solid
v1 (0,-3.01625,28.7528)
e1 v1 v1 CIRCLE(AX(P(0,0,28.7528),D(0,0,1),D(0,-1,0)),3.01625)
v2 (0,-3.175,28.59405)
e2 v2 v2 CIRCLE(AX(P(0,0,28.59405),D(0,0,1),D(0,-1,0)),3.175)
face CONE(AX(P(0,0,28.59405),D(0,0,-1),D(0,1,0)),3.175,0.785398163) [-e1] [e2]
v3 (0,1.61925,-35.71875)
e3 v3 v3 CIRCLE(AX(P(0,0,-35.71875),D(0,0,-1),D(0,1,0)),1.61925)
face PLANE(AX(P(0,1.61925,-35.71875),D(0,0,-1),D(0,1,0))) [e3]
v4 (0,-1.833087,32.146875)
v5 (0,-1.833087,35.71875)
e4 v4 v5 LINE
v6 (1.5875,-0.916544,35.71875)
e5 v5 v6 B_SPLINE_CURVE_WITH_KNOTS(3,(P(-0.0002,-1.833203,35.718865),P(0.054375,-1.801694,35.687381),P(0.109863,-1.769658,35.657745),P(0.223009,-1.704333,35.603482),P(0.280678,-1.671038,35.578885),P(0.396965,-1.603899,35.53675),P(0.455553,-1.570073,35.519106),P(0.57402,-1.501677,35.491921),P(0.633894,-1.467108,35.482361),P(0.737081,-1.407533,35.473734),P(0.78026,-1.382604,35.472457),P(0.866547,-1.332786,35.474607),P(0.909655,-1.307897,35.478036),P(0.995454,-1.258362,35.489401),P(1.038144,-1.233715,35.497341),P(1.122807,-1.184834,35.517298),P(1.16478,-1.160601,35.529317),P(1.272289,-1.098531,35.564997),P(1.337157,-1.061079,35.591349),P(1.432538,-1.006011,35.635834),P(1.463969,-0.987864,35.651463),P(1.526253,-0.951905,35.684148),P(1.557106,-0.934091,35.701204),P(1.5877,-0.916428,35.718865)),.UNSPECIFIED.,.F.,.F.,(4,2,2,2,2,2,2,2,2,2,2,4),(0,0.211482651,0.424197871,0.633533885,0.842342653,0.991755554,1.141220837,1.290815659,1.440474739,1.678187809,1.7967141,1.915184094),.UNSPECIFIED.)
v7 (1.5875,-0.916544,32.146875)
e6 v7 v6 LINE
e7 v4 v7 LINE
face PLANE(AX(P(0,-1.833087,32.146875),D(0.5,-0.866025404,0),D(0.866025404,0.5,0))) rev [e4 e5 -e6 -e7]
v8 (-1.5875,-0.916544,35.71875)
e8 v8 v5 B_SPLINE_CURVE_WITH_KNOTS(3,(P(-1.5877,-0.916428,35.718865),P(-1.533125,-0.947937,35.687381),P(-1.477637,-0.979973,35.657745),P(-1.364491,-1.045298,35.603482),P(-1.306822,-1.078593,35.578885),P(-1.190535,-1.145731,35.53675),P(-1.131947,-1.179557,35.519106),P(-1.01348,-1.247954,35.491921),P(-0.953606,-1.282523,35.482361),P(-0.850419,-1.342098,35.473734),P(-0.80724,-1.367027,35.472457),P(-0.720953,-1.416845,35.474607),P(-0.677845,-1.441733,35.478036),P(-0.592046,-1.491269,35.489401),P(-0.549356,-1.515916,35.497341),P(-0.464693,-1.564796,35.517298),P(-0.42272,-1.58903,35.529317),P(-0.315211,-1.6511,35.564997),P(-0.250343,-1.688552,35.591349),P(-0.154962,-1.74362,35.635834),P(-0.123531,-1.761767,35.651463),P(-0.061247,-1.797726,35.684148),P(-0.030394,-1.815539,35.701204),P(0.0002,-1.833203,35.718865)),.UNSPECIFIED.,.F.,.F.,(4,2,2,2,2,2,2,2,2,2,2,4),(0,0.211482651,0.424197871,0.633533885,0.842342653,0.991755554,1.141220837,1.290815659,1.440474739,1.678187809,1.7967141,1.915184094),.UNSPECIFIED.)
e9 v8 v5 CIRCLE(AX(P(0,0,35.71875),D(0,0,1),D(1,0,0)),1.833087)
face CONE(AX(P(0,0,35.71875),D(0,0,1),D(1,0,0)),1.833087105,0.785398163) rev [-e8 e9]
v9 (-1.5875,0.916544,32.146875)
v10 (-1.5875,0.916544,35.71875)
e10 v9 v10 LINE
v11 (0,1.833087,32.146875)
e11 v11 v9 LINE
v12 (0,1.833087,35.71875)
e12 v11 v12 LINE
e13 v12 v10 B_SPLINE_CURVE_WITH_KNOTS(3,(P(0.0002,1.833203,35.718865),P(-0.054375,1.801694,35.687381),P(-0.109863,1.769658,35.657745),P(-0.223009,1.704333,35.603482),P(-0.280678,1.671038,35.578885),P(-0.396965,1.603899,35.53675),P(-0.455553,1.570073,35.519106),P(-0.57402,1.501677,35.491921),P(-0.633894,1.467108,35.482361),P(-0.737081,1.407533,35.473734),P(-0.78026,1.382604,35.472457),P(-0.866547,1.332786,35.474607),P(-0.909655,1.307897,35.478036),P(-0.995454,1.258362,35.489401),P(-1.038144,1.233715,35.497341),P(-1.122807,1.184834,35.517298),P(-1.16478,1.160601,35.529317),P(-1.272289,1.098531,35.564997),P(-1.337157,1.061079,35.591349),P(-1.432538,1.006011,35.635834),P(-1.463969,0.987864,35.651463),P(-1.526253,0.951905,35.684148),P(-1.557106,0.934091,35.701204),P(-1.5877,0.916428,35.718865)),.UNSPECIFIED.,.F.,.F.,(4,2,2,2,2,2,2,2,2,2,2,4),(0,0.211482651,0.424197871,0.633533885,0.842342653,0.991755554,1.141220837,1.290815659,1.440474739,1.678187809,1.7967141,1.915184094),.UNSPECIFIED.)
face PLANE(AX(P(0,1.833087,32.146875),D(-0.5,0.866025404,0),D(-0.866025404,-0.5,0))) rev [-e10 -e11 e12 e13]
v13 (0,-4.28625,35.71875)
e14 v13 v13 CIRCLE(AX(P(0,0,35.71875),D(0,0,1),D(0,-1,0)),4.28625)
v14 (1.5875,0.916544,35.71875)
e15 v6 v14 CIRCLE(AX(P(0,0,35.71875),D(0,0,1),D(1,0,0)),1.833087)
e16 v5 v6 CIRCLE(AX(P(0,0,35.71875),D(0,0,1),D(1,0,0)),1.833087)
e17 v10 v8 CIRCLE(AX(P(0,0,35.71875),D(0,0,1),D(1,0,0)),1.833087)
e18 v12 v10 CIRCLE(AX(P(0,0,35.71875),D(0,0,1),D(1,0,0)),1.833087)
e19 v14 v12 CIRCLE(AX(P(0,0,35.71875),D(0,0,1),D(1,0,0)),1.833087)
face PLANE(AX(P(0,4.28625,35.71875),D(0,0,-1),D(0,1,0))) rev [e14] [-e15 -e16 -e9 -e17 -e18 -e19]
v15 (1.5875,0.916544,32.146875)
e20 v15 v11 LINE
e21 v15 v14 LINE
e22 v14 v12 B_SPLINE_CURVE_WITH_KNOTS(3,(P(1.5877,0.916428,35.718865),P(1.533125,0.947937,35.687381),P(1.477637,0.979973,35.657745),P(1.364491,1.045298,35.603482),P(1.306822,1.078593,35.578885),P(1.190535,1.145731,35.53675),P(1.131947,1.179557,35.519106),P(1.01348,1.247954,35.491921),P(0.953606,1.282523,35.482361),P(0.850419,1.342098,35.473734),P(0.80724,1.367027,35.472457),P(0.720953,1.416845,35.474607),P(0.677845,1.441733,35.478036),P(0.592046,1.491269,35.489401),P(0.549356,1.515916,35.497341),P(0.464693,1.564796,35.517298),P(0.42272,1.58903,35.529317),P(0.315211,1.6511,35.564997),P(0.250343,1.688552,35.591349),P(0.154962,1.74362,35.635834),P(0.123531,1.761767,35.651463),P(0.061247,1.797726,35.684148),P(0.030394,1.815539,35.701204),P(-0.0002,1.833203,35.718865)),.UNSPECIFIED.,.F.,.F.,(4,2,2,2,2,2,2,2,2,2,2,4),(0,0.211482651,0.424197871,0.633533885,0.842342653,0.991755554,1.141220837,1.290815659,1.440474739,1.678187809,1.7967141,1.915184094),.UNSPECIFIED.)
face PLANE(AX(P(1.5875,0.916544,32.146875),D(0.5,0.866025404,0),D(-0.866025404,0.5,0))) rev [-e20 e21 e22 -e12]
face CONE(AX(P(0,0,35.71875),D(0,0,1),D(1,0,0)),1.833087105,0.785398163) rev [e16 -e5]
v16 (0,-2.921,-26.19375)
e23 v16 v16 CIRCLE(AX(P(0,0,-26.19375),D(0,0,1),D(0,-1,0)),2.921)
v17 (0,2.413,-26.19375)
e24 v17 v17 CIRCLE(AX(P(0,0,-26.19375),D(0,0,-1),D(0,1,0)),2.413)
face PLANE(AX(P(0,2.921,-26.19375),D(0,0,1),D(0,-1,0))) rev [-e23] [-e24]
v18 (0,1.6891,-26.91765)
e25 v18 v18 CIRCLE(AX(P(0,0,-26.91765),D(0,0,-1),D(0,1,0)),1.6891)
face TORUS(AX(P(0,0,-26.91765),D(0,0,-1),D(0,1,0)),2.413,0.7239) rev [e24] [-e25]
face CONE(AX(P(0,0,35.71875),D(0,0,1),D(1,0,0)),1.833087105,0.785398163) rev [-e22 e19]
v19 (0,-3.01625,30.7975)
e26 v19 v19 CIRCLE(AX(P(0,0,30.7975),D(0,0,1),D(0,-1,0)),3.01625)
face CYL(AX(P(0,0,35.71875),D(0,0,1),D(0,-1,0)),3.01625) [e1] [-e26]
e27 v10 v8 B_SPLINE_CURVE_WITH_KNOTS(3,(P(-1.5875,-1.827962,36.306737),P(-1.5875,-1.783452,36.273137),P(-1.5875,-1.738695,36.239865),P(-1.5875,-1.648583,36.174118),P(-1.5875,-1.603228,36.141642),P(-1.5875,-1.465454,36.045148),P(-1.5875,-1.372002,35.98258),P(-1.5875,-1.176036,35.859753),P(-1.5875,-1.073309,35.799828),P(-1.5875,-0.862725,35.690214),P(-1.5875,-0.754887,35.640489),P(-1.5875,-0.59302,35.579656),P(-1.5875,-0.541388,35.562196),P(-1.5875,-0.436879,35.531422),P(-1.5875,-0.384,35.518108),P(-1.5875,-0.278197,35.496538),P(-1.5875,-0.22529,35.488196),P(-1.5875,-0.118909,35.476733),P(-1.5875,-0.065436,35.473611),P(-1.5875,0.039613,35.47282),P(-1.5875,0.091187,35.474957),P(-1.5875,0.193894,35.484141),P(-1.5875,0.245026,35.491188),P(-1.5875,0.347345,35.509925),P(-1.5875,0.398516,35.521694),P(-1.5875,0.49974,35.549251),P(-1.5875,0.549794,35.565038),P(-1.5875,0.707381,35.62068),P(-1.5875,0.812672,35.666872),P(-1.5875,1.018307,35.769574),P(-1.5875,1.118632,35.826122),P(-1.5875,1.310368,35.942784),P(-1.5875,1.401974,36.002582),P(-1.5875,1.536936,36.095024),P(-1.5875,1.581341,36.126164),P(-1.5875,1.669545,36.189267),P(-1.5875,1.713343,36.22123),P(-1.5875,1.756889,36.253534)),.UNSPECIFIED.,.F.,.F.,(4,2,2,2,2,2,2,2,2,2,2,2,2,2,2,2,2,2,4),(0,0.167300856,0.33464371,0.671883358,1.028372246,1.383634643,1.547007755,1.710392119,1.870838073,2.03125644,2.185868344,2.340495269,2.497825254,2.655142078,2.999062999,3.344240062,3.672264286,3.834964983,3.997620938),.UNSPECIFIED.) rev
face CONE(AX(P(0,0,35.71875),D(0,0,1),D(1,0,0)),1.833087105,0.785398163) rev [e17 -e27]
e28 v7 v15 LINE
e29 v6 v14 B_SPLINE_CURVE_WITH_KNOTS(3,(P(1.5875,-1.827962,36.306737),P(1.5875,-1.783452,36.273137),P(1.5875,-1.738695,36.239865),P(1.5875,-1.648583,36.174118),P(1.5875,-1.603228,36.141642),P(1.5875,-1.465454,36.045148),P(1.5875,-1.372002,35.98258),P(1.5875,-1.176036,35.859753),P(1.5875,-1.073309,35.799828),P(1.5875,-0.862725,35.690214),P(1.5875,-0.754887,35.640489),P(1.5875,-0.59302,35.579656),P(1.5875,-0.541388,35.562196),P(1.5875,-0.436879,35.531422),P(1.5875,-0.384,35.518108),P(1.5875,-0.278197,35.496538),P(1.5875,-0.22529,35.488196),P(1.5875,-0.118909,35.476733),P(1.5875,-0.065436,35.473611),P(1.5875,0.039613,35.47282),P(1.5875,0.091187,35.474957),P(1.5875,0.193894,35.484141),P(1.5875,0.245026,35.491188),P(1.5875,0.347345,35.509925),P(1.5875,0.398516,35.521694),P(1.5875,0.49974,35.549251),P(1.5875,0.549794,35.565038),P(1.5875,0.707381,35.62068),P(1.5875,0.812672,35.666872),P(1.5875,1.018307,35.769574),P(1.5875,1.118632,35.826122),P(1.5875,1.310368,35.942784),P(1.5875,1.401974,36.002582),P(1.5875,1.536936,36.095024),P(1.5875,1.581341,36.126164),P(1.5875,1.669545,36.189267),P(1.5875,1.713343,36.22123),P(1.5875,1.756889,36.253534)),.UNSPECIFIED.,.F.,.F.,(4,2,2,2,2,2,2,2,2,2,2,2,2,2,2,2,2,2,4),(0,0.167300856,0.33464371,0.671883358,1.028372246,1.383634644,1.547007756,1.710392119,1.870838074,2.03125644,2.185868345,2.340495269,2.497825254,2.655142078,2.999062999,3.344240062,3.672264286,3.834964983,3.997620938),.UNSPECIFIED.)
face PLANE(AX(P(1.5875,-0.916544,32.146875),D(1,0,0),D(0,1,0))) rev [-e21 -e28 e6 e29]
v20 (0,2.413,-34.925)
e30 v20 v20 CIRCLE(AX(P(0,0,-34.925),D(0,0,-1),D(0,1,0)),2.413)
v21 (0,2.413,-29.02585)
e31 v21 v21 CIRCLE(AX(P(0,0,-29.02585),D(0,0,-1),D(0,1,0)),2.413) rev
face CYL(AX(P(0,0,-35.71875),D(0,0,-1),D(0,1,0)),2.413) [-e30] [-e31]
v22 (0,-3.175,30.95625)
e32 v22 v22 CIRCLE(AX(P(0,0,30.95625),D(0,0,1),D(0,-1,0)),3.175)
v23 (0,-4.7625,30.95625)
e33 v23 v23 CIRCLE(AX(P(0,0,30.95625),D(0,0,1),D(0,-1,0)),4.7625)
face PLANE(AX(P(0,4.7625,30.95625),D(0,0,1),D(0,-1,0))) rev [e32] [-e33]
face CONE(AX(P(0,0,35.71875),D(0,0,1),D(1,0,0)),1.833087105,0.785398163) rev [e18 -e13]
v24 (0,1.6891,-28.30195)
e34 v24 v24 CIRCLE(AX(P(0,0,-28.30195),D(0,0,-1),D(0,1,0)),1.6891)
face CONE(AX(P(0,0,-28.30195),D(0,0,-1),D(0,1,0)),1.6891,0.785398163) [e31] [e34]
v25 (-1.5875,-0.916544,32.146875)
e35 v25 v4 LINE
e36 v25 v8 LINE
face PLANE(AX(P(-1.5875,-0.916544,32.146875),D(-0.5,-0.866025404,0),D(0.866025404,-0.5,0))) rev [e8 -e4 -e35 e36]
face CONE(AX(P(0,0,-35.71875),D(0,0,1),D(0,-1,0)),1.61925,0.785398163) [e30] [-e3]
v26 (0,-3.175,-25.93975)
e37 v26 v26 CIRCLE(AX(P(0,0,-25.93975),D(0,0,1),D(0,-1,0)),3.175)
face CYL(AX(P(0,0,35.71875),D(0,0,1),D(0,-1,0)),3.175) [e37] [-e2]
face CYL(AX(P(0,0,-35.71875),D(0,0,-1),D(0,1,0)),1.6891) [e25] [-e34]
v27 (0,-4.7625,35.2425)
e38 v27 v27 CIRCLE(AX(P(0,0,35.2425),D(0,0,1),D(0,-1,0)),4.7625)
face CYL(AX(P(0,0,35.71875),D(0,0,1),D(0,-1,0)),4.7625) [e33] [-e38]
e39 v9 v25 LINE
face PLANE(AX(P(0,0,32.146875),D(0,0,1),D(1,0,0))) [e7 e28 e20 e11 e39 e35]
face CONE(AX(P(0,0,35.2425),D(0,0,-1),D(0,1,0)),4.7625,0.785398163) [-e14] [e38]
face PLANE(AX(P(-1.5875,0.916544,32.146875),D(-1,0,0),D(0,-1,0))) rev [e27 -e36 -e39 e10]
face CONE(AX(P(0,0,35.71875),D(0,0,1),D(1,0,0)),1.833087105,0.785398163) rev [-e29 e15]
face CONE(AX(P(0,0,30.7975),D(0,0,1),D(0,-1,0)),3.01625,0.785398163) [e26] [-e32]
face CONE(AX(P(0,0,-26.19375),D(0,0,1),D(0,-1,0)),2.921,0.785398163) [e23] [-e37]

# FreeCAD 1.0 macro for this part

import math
import FreeCAD as App
import Part
import Sketcher

V = App.Vector
Q = App.Units.Quantity


def add_polygon(sketch, points):
    """Adds a closed chain of lines whose ends are joined by coincident constraints."""
    first, n = sketch.GeometryCount, len(points)
    for a, b in zip(points, points[1:] + points[:1]):
        sketch.addGeometry(Part.LineSegment(App.Vector(*a, 0), App.Vector(*b, 0)), False)
    for i in range(n):
        sketch.addConstraint(Sketcher.Constraint("Coincident", first + i, 2, first + (i + 1) % n, 1))

doc = App.newDocument("Part")
body = doc.addObject("PartDesign::Body", "Body")

sketch1 = doc.addObject("Sketcher::SketchObject", "Sketch")
body.addObject(sketch1)
sketch1.AttachmentSupport = (doc.YZ_Plane, [""])
sketch1.MapMode = "FlatFace"
add_polygon(sketch1, [(4.76, 30.96), (4.76, 35.24), (4.29, 35.72), (0, 35.72), (0, -26.19), (2.92, -26.19), (3.17, -25.94), (3.17, 28.59), (3.02, 28.75), (3.02, 30.8), (3.17, 30.96)])
sketch1.addConstraint([
    Sketcher.Constraint("Vertical", 0),
    Sketcher.Constraint("Horizontal", 2),
    Sketcher.Constraint("Vertical", 3),
    Sketcher.Constraint("Horizontal", 4),
    Sketcher.Constraint("Vertical", 6),
    Sketcher.Constraint("Vertical", 8),
    Sketcher.Constraint("Horizontal", 10),
    Sketcher.Constraint("PointOnObject", 2, 2, -2),
    Sketcher.Constraint("Perpendicular", 1, 5),
    Sketcher.Constraint("Perpendicular", 5, 7),
    Sketcher.Constraint("Perpendicular", 7, 9),
    Sketcher.Constraint("Vertical", 6, 2, 9, 2),
    Sketcher.Constraint("Equal", 2, 0),
    Sketcher.Constraint("Equal", 7, 9),
    Sketcher.Constraint("DistanceX", 4, 1, 4, 2, Q("0.115 in")),
    Sketcher.Constraint("DistanceX", 10, 1, 10, 2, Q("0.0625 in")),
    Sketcher.Constraint("DistanceY", 3, 2, 3, 1, Q("2.4375 in")),
    Sketcher.Constraint("DistanceY", 6, 1, 6, 2, Q("2.147 in")),
    Sketcher.Constraint("DistanceX", 4, 2, 5, 2, Q("0.01 in")),
    Sketcher.Constraint("DistanceX", 7, 2, 1, 2, Q("0.05 in")),
    Sketcher.Constraint("DistanceY", 8, 1, 8, 2, Q("0.0805 in")),
    Sketcher.Constraint("DistanceY", -1, 1, 1, 2, Q("1.40625 in")),
])
revolution = doc.addObject("PartDesign::Revolution", "Revolution")
body.addObject(revolution)
revolution.Profile = sketch1
revolution.ReferenceAxis = (sketch1, ["V_Axis"])
revolution.Angle = 360

sketch2 = doc.addObject("Sketcher::SketchObject", "Sketch001")
body.addObject(sketch2)
sketch2.AttachmentSupport = (doc.XY_Plane, [""])
sketch2.MapMode = "FlatFace"
sketch2.AttachmentOffset = App.Placement(V(0, 0, 1.40625 * 25.4), App.Rotation())
add_polygon(sketch2, [(1.6, 0.9), (0, 1.8), (-1.6, 0.9), (-1.6, -0.9), (0, -1.8), (1.6, -0.9)])
sketch2.addConstraint([
    Sketcher.Constraint("Vertical", 2),
    Sketcher.Constraint("Vertical", 5),
    Sketcher.Constraint("Symmetric", 0, 2, 3, 2, -1, 1),
    Sketcher.Constraint("Symmetric", 1, 2, 4, 2, -1, 1),
    Sketcher.Constraint("PointOnObject", 0, 2, -2),
    Sketcher.Constraint("Parallel", 0, 3),
    Sketcher.Constraint("Horizontal", 2, 2, 4, 2),
    Sketcher.Constraint("Angle", 0, Q("150 deg")),
    Sketcher.Constraint("DistanceX", 1, 2, -1, 1, Q("0.0625 in")),
    Sketcher.Constraint("DistanceY", 2, 2, 2, 1, Q("1.833087 mm")),
])
pocket1 = doc.addObject("PartDesign::Pocket", "Pocket")
body.addObject(pocket1)
pocket1.Profile = sketch2
pocket1.Length = Q("0.140625 in")

sketch3 = doc.addObject("Sketcher::SketchObject", "Sketch002")
body.addObject(sketch3)
sketch3.AttachmentSupport = (doc.YZ_Plane, [""])
sketch3.MapMode = "FlatFace"
add_polygon(sketch3, [(0, 35.7), (-1.8, 35.7), (0, 33.9)])
sketch3.addConstraint([
    Sketcher.Constraint("Horizontal", 0),
    Sketcher.Constraint("Vertical", 2),
    Sketcher.Constraint("PointOnObject", 1, 2, -2),
    Sketcher.Constraint("Equal", 0, 2),
    Sketcher.Constraint("DistanceY", -1, 1, 0, 2, Q("1.40625 in")),
    Sketcher.Constraint("DistanceX", 0, 2, 0, 1, Q("1.833087 mm")),
])
groove = doc.addObject("PartDesign::Groove", "Groove")
body.addObject(groove)
groove.Profile = sketch3
groove.ReferenceAxis = (sketch3, ["V_Axis"])
groove.Angle = 360

sketch4 = doc.addObject("Sketcher::SketchObject", "Sketch003")
body.addObject(sketch4)
sketch4.AttachmentSupport = (doc.YZ_Plane, [""])
sketch4.MapMode = "FlatFace"
add_polygon(sketch4, [(2.4, -34.9), (2.4, -26.2), (0, -26.2), (0, -35.7), (1.6, -35.7)])
sketch4.addConstraint([
    Sketcher.Constraint("Vertical", 0),
    Sketcher.Constraint("Horizontal", 1),
    Sketcher.Constraint("Vertical", 2),
    Sketcher.Constraint("Horizontal", 3),
    Sketcher.Constraint("PointOnObject", 1, 2, -2),
    Sketcher.Constraint("Angle", 4, Q("45 deg")),
    Sketcher.Constraint("DistanceX", 1, 2, 1, 1, Q("0.095 in")),
    Sketcher.Constraint("DistanceY", 0, 1, 0, 2, Q("0.34375 in")),
    Sketcher.Constraint("DistanceY", 2, 2, 2, 1, Q("0.375 in")),
    Sketcher.Constraint("DistanceY", 0, 2, -1, 1, Q("1.03125 in")),
])
revolution2 = doc.addObject("PartDesign::Revolution", "Revolution001")
body.addObject(revolution2)
revolution2.Profile = sketch4
revolution2.ReferenceAxis = (sketch4, ["V_Axis"])
revolution2.Angle = 360

sketch5 = doc.addObject("Sketcher::SketchObject", "Sketch004")
body.addObject(sketch5)
sketch5.AttachmentSupport = (doc.YZ_Plane, [""])
sketch5.MapMode = "FlatFace"
sketch5.addGeometry([
    Part.LineSegment(V(1.7, -26.9, 0), V(1.7, -28.3, 0)),
    Part.LineSegment(V(1.7, -28.3, 0), V(3.2, -29.8, 0)),
    Part.LineSegment(V(3.2, -29.8, 0), V(3.2, -26.2, 0)),
    Part.LineSegment(V(3.2, -26.2, 0), V(2.4, -26.2, 0)),
    Part.ArcOfCircle(Part.Circle(V(2.4, -26.9, 0), V(0, 0, 1), 0.7), math.radians(90), math.radians(180)),
], False)
sketch5.addConstraint([
    Sketcher.Constraint("Coincident", 0, 2, 1, 1),
    Sketcher.Constraint("Coincident", 1, 2, 2, 1),
    Sketcher.Constraint("Coincident", 2, 2, 3, 1),
    Sketcher.Constraint("Tangent", 3, 2, 4, 1),
    Sketcher.Constraint("Tangent", 4, 2, 0, 1),
    Sketcher.Constraint("Vertical", 0),
    Sketcher.Constraint("Vertical", 2),
    Sketcher.Constraint("Horizontal", 3),
    Sketcher.Constraint("Angle", 1, Q("-45 deg")),
    Sketcher.Constraint("DistanceX", 3, 2, 3, 1, Q("0.03 in")),
    Sketcher.Constraint("Radius", 4, Q("0.0285 in")),
    Sketcher.Constraint("DistanceY", 0, 2, 0, 1, Q("0.0545 in")),
    Sketcher.Constraint("DistanceX", -1, 1, 4, 3, Q("0.095 in")),
    Sketcher.Constraint("DistanceY", 2, 2, -1, 1, Q("1.03125 in")),
])
groove2 = doc.addObject("PartDesign::Groove", "Groove001")
body.addObject(groove2)
groove2.Profile = sketch5
groove2.ReferenceAxis = (sketch5, ["V_Axis"])
groove2.Angle = 360

doc.recompute()
